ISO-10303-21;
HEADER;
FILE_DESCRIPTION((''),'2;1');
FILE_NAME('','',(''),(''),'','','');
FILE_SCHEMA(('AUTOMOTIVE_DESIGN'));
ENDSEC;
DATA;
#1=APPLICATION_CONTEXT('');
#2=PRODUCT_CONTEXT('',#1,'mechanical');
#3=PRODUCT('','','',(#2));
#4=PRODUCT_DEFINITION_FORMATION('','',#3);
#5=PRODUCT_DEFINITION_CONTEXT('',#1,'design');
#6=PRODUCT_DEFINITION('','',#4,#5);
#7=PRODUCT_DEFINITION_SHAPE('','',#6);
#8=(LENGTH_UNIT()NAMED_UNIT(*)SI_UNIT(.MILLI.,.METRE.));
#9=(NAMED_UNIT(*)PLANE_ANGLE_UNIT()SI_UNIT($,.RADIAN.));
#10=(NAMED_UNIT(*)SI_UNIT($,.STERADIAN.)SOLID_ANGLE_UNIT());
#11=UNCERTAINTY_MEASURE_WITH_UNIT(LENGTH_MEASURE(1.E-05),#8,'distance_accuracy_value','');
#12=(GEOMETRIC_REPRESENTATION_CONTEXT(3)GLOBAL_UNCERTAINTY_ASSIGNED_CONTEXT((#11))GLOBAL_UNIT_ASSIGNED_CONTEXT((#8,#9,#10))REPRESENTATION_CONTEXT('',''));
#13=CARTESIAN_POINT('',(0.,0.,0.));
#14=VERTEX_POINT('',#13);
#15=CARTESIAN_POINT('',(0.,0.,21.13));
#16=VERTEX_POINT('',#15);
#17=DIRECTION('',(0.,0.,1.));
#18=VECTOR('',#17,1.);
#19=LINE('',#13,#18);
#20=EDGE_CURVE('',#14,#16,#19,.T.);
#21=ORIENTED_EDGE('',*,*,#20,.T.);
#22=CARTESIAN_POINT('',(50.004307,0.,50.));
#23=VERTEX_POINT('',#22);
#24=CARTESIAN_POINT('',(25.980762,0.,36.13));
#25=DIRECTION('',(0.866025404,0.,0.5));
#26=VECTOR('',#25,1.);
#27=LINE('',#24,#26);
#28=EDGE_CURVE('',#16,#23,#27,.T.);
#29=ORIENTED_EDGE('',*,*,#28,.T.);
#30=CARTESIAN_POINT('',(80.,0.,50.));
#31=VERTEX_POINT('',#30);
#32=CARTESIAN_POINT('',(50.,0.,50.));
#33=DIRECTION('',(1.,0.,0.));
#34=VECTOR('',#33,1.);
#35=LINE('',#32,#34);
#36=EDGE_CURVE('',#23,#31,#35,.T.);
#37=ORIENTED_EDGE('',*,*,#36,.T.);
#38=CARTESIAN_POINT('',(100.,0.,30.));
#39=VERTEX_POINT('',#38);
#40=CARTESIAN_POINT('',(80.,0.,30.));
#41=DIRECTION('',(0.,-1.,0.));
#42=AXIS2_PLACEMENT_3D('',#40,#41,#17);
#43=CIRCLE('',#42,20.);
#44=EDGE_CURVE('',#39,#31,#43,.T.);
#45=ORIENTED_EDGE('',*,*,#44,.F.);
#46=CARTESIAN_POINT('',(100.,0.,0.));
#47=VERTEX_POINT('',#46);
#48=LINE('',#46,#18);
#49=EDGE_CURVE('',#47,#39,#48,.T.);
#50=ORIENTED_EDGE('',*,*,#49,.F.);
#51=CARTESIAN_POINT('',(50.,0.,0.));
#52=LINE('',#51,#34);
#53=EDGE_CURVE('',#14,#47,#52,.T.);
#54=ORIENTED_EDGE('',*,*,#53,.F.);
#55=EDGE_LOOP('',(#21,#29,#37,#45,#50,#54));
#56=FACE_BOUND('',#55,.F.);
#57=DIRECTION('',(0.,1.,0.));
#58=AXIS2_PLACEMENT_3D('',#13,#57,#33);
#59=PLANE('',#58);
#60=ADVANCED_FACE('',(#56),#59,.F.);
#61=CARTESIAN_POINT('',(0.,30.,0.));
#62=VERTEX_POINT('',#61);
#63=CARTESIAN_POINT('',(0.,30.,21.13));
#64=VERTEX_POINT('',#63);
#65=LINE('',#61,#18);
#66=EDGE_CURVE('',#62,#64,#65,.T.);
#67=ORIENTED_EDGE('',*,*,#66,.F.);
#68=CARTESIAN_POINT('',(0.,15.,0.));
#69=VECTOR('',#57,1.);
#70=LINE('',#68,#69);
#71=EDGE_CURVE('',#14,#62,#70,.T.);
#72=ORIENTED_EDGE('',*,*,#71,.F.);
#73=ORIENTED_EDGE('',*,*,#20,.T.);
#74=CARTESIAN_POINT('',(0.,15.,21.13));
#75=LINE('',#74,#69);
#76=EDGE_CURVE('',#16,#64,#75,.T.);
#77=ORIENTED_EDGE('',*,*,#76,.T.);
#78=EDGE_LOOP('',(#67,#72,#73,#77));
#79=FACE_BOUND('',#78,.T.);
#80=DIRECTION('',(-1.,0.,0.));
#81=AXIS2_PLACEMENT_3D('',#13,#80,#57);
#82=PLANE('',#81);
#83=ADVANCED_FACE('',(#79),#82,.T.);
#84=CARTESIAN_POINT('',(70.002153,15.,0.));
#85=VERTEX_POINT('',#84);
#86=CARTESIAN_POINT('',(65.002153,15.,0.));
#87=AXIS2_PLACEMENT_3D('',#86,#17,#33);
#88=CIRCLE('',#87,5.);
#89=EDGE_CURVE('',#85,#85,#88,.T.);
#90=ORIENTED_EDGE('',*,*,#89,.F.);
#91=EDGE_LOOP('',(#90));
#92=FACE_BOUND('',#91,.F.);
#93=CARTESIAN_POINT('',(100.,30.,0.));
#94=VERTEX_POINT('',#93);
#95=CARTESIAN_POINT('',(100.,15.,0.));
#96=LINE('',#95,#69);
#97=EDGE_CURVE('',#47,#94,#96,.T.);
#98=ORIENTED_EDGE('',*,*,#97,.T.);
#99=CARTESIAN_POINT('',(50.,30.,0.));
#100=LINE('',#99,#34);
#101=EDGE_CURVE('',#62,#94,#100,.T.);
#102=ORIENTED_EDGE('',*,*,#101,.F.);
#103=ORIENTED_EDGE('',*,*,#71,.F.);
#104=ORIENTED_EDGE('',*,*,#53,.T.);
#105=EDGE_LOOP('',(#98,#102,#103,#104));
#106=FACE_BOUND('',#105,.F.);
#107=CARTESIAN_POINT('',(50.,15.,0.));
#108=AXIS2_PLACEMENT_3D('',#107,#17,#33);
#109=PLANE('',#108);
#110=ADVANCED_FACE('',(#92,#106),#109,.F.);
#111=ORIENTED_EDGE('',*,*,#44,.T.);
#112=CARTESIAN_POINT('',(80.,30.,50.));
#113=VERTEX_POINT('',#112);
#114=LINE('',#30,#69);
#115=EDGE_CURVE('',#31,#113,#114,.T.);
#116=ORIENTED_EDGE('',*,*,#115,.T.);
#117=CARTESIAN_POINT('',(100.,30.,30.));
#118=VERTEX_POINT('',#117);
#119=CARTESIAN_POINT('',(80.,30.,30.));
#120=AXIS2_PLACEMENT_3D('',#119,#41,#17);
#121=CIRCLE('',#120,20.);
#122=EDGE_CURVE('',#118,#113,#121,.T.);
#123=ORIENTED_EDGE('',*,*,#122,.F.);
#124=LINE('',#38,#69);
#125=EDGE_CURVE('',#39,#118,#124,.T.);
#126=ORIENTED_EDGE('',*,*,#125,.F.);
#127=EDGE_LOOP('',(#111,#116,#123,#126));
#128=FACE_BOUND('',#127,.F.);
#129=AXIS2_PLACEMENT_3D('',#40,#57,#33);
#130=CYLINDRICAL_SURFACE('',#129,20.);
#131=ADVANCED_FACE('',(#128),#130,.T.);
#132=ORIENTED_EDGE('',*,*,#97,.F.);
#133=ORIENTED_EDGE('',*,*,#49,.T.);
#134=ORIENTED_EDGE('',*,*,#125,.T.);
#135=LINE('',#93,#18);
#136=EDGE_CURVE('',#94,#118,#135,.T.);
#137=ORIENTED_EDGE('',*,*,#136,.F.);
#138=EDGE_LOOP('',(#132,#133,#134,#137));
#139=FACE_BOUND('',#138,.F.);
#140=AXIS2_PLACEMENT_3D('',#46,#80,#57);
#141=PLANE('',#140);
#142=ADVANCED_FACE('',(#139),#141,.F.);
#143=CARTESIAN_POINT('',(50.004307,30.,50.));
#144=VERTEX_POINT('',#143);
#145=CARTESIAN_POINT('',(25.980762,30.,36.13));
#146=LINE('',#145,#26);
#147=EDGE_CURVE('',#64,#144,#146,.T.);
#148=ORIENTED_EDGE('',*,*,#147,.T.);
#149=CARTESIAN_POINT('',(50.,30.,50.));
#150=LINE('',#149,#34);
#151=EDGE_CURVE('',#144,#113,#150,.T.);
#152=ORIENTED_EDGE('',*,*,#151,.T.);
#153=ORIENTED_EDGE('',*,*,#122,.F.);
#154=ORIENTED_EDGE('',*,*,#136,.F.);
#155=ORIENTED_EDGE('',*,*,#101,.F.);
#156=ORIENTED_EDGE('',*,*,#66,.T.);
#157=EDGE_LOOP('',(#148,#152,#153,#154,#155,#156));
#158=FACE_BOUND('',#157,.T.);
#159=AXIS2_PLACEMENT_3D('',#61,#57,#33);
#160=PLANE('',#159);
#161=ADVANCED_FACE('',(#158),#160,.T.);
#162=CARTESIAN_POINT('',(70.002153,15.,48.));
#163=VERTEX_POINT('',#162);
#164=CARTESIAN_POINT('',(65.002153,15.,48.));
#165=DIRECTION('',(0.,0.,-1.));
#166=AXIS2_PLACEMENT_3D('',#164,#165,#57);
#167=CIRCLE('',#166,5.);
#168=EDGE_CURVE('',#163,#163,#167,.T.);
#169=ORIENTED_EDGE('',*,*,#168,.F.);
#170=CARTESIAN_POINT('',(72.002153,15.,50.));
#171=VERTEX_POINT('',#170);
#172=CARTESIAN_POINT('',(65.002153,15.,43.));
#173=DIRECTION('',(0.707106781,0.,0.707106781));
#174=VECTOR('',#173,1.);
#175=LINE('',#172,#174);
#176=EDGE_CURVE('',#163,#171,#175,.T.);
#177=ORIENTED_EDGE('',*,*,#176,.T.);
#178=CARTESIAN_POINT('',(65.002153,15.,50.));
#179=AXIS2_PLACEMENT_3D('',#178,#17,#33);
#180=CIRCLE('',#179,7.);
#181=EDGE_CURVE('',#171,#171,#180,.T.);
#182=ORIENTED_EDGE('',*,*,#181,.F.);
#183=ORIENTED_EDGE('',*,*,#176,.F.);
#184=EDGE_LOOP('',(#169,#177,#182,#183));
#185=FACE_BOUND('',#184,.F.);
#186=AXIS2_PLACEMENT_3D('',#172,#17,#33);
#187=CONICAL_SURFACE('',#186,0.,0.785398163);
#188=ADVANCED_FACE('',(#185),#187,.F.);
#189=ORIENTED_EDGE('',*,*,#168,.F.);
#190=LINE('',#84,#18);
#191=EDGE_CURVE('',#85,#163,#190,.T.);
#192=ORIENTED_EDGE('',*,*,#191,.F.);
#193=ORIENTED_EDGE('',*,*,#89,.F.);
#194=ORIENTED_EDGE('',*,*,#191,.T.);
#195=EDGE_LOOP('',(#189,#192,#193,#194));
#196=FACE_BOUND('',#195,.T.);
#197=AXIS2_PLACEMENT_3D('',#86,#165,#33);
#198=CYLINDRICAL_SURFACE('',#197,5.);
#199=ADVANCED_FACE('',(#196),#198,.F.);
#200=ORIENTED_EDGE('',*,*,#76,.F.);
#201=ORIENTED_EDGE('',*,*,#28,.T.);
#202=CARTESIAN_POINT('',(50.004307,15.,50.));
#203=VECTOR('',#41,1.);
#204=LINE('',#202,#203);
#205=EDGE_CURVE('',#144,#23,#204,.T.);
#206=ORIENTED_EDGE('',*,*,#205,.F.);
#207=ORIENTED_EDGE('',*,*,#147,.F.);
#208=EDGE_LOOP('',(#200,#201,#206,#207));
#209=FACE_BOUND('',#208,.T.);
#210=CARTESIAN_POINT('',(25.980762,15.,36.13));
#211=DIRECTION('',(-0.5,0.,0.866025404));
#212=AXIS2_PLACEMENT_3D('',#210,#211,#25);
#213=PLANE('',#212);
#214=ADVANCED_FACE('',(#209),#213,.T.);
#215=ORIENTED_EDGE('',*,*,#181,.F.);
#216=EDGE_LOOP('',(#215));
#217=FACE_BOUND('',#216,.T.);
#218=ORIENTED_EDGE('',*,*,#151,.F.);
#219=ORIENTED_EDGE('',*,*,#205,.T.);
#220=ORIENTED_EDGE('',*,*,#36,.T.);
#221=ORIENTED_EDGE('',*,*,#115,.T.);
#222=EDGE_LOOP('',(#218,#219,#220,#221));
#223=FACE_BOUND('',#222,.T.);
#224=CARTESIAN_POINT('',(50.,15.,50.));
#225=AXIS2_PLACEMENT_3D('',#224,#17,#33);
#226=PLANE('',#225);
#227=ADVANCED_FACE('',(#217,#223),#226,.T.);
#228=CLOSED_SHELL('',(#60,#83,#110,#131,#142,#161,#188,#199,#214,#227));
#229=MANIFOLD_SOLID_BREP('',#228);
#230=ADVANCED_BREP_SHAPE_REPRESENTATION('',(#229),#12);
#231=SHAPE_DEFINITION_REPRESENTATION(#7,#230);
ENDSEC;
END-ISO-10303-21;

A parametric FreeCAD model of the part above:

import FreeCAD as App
import Part
import Sketcher
from FreeCAD import Vector
Q = App.Units.Quantity


def edges_at(feature, points):
    """Names of the edges that pass closest to the given points."""
    edges = feature.Shape.Edges
    near = lambda p: min(range(len(edges)), key=lambda i: edges[i].distToShape(Part.Vertex(*p))[0])
    return sorted({f"Edge{near(p) + 1}" for p in points})

doc = App.newDocument("Part")
body = doc.addObject("PartDesign::Body", "Body")

# Sketch on XZ plane
sketch1 = body.newObject("Sketcher::SketchObject", "Sketch")
sketch1.AttachmentSupport = (doc.getObject("XZ_Plane"), [""])
sketch1.MapMode = "FlatFace"
sketch1.AttachmentOffset = App.Placement(Vector(0, 0, -15), App.Rotation())
sketch1.addGeometry([
    Part.LineSegment(Vector(65, 43, 0), Vector(72, 50, 0)),
    Part.LineSegment(Vector(72, 50, 0), Vector(65, 50, 0)),
    Part.LineSegment(Vector(65, 50, 0), Vector(65, 43, 0)),
], False)
sketch1.addGeometry(Part.LineSegment(Vector(65, 43, 0), Vector(65, 50, 0)), True)  # axis
sketch1.addConstraint([
    Sketcher.Constraint("Coincident", 0, 2, 1, 1),
    Sketcher.Constraint("Coincident", 1, 2, 2, 1),
    Sketcher.Constraint("Coincident", 2, 2, 0, 1),
    Sketcher.Constraint("Horizontal", 1),
    Sketcher.Constraint("Vertical", 2),
    Sketcher.Constraint("Vertical", 3),
    Sketcher.Constraint("Coincident", 3, 1, 2, 2),
    Sketcher.Constraint("Horizontal", 0, 2, 3, 2),
    Sketcher.Constraint("Equal", 1, 2),
    Sketcher.Constraint("DistanceX", 1, 2, 1, 1, Q("7 mm")),
    Sketcher.Constraint("DistanceY", -1, 1, 0, 2, Q("50 mm")),
    Sketcher.Constraint("DistanceX", -1, 1, 0, 2, Q("72.002153 mm")),
])
revolution = body.newObject("PartDesign::Revolution", "Revolution")
revolution.Profile = sketch1
revolution.ReferenceAxis = (sketch1, ["Axis0"])
revolution.Angle = 360
body2 = doc.addObject("PartDesign::Body", "Body001")

# Sketch on XY plane
sketch2 = body2.newObject("Sketcher::SketchObject", "Sketch001")
sketch2.AttachmentSupport = (doc.getObject("XY_Plane001"), [""])
sketch2.MapMode = "FlatFace"
sketch2.addGeometry(Part.Circle(Vector(65, 15, 0), Vector(0, 0, 1), 5), False)
sketch2.addConstraint([
    Sketcher.Constraint("Diameter", 0, Q("10 mm")),
    Sketcher.Constraint("DistanceY", -1, 1, 0, 3, Q("15 mm")),
    Sketcher.Constraint("DistanceX", -1, 1, 0, 3, Q("65.002153 mm")),
])
pad1 = body2.newObject("PartDesign::Pad", "Pad")
pad1.Profile = sketch2
pad1.Length = 50
body3 = doc.addObject("PartDesign::Body", "Body002")

# Sketch on XY plane
sketch3 = body3.newObject("Sketcher::SketchObject", "Sketch002")
sketch3.AttachmentSupport = (doc.getObject("XY_Plane002"), [""])
sketch3.MapMode = "FlatFace"
sketch3.addGeometry([
    Part.LineSegment(Vector(0, 30, 0), Vector(0, 0, 0)),
    Part.LineSegment(Vector(0, 0, 0), Vector(60, 0, 0)),
    Part.LineSegment(Vector(60, 0, 0), Vector(60, 30, 0)),
    Part.LineSegment(Vector(60, 30, 0), Vector(0, 30, 0)),
], False)
sketch3.addConstraint([
    Sketcher.Constraint("Coincident", 0, 2, 1, 1),
    Sketcher.Constraint("Coincident", 1, 2, 2, 1),
    Sketcher.Constraint("Coincident", 2, 2, 3, 1),
    Sketcher.Constraint("Coincident", 3, 2, 0, 1),
    Sketcher.Constraint("Vertical", 0),
    Sketcher.Constraint("Horizontal", 1),
    Sketcher.Constraint("Vertical", 2),
    Sketcher.Constraint("Horizontal", 3),
    Sketcher.Constraint("Coincident", 0, 2, -1, 1),
    Sketcher.Constraint("DistanceX", 1, 1, 1, 2, Q("60 mm")),
    Sketcher.Constraint("DistanceY", 0, 2, 0, 1, Q("30 mm")),
])
pad2 = body3.newObject("PartDesign::Pad", "Pad001")
pad2.Profile = sketch3
pad2.Length = 30
body4 = doc.addObject("PartDesign::Body", "Body003")
doc.recompute()

body3.Placement = App.Placement(Vector(0, 0, 21.13), App.Rotation(Vector(0, 1, 0), 330))
boolean = body4.newObject("PartDesign::Boolean", "Boolean")
boolean.Type = "Fuse"
boolean.addObjects([body3])
body5 = doc.addObject("PartDesign::Body", "Body004")

# Sketch on XY plane
sketch4 = body5.newObject("Sketcher::SketchObject", "Sketch003")
sketch4.AttachmentSupport = (doc.getObject("XY_Plane004"), [""])
sketch4.MapMode = "FlatFace"
sketch4.addGeometry([
    Part.LineSegment(Vector(0, 30, 0), Vector(0, 0, 0)),
    Part.LineSegment(Vector(0, 0, 0), Vector(100, 0, 0)),
    Part.LineSegment(Vector(100, 0, 0), Vector(100, 30, 0)),
    Part.LineSegment(Vector(100, 30, 0), Vector(0, 30, 0)),
], False)
sketch4.addConstraint([
    Sketcher.Constraint("Coincident", 0, 2, 1, 1),
    Sketcher.Constraint("Coincident", 1, 2, 2, 1),
    Sketcher.Constraint("Coincident", 2, 2, 3, 1),
    Sketcher.Constraint("Coincident", 3, 2, 0, 1),
    Sketcher.Constraint("Vertical", 0),
    Sketcher.Constraint("Horizontal", 1),
    Sketcher.Constraint("Vertical", 2),
    Sketcher.Constraint("Horizontal", 3),
    Sketcher.Constraint("Coincident", 0, 2, -1, 1),
    Sketcher.Constraint("DistanceX", 1, 1, 1, 2, Q("100 mm")),
    Sketcher.Constraint("DistanceY", 0, 2, 0, 1, Q("30 mm")),
])
pad3 = body5.newObject("PartDesign::Pad", "Pad002")
pad3.Profile = sketch4
pad3.Length = 50
doc.recompute()

fillet = body5.newObject("PartDesign::Fillet", "Fillet")
fillet.Base = (pad3, edges_at(pad3, [(100, 15, 50)]))
fillet.Radius = 20
doc.recompute()

boolean2 = body5.newObject("PartDesign::Boolean", "Boolean001")
boolean2.Type = "Cut"
boolean2.addObjects([body4])
doc.recompute()

boolean3 = body5.newObject("PartDesign::Boolean", "Boolean002")
boolean3.Type = "Cut"
boolean3.addObjects([body2])
doc.recompute()

boolean4 = body5.newObject("PartDesign::Boolean", "Boolean003")
boolean4.Type = "Cut"
boolean4.addObjects([body])

doc.recompute()
